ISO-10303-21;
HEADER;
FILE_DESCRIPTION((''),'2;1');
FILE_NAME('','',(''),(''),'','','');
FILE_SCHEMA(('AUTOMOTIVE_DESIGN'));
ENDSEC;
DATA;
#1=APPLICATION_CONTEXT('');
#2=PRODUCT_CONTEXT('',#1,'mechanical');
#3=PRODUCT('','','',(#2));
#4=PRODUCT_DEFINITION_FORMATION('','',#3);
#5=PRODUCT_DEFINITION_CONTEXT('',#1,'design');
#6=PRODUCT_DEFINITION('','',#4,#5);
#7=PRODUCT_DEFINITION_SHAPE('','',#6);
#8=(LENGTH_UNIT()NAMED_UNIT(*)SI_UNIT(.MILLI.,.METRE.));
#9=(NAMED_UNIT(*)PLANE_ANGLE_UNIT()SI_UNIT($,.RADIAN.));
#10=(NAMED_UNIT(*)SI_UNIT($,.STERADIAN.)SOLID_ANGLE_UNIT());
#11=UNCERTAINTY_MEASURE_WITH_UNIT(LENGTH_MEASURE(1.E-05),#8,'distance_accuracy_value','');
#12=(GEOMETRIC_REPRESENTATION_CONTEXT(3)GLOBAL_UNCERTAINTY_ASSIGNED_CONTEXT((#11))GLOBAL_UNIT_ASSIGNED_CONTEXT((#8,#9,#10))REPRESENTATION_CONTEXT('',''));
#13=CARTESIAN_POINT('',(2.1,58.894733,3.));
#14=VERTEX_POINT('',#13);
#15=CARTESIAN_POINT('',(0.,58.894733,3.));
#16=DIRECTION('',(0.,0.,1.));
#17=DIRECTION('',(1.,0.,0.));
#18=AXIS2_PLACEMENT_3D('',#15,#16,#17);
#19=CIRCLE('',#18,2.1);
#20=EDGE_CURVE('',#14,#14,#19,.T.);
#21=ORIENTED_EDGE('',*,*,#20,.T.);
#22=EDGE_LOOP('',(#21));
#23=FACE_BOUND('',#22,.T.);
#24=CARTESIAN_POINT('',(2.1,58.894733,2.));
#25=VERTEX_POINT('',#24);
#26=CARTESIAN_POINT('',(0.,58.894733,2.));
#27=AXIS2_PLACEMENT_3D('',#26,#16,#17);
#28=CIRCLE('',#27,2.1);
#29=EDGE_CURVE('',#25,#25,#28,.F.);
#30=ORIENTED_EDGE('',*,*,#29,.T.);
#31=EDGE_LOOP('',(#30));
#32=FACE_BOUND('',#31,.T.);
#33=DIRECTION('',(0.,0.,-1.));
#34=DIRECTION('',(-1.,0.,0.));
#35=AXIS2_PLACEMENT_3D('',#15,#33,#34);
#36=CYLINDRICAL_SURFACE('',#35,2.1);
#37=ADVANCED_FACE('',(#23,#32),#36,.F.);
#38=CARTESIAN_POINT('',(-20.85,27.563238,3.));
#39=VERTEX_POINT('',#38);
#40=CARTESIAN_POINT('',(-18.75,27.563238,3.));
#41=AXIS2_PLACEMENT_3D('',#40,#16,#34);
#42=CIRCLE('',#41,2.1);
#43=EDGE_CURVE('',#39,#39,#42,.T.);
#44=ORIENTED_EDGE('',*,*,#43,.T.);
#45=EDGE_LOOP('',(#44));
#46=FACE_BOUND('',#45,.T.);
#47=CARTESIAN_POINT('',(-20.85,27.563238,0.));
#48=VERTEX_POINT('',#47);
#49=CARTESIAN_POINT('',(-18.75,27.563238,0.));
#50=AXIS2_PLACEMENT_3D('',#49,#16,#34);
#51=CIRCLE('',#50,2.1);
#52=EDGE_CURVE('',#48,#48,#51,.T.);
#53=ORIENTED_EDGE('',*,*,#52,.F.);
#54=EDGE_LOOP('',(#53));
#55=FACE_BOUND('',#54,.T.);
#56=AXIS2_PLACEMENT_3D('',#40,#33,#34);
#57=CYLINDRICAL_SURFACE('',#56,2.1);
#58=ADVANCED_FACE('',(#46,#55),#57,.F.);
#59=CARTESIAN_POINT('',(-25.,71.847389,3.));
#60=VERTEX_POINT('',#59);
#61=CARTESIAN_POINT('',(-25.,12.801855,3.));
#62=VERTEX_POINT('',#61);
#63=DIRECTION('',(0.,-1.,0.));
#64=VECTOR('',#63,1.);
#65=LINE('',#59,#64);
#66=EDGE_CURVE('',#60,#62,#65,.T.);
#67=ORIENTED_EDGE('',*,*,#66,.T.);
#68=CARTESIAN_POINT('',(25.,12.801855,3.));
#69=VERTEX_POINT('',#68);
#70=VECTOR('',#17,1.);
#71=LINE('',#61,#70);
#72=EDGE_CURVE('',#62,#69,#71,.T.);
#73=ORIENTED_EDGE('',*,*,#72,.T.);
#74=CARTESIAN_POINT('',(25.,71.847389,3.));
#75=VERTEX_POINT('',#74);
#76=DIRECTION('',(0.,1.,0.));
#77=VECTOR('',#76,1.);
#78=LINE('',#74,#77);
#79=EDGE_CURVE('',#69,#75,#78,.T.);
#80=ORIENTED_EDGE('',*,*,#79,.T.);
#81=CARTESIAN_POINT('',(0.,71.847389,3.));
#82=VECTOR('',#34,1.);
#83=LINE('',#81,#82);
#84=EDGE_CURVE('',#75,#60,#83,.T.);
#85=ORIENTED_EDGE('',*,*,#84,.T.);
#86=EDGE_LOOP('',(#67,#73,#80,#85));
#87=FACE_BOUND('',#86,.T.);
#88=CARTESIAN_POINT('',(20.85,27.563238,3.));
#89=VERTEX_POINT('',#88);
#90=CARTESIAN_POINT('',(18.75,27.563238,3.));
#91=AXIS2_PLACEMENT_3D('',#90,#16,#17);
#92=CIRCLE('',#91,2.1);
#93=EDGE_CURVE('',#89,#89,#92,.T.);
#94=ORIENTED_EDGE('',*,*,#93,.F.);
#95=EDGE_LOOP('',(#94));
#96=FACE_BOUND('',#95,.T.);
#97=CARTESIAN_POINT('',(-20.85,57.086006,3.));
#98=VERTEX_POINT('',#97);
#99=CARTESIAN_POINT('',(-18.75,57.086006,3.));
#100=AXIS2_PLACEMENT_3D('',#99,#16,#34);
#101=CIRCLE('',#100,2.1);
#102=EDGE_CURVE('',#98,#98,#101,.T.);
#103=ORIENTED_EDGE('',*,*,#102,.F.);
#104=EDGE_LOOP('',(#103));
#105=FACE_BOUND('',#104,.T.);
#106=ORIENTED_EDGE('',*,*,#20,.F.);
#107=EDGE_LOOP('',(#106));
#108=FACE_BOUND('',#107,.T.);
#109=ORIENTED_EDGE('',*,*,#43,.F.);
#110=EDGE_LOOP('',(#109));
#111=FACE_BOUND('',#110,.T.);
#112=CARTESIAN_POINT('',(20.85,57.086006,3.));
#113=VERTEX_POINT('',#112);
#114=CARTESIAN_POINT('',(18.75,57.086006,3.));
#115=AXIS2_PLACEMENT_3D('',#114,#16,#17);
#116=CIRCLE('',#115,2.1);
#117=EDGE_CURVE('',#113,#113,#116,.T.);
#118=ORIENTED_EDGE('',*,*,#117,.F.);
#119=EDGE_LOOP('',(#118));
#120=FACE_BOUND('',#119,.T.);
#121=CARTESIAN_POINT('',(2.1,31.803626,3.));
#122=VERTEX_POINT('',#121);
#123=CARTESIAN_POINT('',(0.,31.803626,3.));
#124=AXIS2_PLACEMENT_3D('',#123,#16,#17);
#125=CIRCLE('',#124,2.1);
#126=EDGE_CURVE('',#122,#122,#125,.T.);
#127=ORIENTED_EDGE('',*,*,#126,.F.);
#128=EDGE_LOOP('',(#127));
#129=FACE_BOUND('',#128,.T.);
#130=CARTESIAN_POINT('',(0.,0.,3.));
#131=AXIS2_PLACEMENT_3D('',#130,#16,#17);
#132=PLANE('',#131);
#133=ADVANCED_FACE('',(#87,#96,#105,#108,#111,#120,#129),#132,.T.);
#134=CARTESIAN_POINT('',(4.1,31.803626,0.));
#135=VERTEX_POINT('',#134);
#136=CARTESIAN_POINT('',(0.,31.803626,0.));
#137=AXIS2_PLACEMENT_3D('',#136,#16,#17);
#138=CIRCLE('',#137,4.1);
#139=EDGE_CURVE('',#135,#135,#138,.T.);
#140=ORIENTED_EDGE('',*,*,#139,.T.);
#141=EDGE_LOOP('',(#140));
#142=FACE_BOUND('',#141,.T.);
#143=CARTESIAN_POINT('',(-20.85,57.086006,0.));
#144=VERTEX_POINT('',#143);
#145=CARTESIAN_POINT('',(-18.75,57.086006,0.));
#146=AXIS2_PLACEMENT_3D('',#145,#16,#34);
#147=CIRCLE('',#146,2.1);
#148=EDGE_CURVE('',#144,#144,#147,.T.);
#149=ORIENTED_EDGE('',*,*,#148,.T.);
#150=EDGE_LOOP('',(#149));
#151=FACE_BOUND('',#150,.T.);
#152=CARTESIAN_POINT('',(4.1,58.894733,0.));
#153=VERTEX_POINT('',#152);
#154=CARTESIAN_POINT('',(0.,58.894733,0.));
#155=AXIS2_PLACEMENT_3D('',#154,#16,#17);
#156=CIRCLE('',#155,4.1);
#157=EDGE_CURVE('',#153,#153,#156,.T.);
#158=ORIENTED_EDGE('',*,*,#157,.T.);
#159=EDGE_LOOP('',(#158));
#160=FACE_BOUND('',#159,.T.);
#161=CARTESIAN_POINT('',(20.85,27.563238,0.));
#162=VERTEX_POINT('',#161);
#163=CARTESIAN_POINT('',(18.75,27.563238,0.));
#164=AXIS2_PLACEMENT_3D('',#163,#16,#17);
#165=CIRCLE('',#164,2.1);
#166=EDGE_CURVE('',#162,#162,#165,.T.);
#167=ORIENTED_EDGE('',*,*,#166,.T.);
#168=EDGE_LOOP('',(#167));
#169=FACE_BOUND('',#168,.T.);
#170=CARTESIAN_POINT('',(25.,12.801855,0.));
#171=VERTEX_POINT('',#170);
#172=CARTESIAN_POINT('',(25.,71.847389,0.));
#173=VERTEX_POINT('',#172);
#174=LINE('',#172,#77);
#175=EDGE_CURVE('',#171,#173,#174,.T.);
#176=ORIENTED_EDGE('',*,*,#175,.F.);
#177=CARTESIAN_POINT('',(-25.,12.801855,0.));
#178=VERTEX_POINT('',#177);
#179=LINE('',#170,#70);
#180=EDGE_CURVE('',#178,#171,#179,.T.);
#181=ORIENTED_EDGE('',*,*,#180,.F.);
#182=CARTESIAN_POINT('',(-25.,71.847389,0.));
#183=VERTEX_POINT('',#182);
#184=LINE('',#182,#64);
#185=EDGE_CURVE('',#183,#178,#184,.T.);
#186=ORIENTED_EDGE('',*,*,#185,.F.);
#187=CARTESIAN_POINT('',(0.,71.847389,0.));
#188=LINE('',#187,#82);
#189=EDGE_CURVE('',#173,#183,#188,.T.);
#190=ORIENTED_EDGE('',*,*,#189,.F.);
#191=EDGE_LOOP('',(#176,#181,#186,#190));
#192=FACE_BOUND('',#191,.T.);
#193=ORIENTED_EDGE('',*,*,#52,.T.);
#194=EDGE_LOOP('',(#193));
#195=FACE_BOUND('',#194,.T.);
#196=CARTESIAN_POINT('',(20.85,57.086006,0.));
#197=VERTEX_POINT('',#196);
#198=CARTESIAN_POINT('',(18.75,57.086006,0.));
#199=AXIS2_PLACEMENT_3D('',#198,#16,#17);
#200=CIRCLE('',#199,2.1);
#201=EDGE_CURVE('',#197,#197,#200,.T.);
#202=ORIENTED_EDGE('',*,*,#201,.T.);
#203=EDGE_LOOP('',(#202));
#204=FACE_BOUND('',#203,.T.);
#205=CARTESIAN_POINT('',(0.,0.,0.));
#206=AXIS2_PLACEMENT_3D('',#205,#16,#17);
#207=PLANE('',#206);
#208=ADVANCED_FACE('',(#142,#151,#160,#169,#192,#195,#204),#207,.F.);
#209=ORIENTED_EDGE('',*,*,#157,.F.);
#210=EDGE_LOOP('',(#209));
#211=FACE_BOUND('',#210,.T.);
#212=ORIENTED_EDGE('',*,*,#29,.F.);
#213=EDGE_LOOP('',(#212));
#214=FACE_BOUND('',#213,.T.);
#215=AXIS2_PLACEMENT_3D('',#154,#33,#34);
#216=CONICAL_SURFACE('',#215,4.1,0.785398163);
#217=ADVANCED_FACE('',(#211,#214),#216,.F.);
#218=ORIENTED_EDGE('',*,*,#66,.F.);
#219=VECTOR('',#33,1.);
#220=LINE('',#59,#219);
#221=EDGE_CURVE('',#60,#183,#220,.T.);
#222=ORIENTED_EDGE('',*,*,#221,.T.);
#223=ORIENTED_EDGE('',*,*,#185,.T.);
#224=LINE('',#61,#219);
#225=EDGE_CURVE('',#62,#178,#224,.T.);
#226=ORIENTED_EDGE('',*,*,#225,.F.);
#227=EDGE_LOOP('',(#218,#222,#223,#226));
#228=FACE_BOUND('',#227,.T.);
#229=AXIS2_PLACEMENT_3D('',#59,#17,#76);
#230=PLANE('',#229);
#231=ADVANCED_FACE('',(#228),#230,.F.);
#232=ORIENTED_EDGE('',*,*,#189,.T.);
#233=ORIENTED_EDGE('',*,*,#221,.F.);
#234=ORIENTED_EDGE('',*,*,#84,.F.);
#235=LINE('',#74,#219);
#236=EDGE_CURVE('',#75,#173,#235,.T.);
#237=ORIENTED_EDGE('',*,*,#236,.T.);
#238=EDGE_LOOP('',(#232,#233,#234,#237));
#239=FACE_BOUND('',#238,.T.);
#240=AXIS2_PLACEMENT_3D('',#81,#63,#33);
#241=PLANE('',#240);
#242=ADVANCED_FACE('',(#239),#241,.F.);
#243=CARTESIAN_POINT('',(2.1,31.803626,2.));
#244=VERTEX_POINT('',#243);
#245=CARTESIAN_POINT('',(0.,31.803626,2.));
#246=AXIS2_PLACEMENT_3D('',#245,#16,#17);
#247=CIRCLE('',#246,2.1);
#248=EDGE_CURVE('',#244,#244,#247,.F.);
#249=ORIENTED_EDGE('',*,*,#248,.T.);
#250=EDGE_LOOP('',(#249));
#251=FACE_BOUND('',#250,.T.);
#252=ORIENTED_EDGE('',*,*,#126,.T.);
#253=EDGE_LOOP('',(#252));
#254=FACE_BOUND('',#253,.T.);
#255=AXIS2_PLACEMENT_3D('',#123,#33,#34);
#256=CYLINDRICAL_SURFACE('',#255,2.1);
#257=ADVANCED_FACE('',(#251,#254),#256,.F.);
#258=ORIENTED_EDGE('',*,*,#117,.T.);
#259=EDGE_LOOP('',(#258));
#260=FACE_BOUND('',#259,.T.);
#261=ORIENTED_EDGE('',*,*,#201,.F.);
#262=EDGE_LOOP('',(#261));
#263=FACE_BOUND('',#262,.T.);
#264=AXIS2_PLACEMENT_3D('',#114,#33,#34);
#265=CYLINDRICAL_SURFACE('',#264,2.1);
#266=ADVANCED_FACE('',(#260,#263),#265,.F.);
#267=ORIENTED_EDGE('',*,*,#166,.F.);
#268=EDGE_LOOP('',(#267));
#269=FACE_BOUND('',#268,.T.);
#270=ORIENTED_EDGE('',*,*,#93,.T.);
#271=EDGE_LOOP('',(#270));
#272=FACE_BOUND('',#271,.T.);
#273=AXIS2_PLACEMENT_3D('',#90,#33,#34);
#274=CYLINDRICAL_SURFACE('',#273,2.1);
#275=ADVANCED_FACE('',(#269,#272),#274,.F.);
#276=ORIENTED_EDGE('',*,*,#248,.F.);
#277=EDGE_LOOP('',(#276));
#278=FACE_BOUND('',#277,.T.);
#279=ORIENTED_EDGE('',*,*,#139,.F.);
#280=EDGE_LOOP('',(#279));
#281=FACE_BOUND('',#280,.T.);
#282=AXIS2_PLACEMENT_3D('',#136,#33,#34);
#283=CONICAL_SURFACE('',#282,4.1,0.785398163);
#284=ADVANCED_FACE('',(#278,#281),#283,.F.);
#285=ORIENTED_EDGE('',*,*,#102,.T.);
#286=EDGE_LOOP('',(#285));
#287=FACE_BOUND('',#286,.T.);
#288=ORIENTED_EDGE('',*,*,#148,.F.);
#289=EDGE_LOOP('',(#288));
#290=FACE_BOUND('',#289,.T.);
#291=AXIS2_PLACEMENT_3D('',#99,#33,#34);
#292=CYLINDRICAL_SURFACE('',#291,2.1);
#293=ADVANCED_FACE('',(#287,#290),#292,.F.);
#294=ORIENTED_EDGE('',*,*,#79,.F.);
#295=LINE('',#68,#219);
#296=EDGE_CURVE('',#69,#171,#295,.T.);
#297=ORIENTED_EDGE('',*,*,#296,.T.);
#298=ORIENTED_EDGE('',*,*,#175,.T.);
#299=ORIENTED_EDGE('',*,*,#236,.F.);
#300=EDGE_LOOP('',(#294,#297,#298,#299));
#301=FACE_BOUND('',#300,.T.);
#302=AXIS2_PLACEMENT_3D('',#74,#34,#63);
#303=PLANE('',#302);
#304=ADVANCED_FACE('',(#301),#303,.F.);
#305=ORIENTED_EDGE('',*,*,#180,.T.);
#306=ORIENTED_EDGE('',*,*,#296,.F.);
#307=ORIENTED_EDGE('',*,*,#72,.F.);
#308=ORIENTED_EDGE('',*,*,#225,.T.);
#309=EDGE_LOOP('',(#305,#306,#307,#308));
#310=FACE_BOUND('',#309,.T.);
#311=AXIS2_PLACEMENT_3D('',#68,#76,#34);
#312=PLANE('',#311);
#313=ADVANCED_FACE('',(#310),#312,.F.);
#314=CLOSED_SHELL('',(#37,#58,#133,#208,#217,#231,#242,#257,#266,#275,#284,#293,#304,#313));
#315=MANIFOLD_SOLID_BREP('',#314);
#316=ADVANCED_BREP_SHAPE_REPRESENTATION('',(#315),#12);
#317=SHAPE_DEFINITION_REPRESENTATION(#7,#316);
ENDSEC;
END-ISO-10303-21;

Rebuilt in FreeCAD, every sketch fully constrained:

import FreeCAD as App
import Part
import Sketcher


def edges_at(feature, points):
    """Names of the edges that pass closest to the given points."""
    edges = feature.Shape.Edges
    near = lambda p: min(range(len(edges)), key=lambda i: edges[i].distToShape(Part.Vertex(*p))[0])
    return sorted({f"Edge{near(p) + 1}" for p in points})

doc = App.newDocument("Part")
body = doc.addObject("PartDesign::Body", "Body")

# Sketch on XY plane
sketch1 = body.newObject("Sketcher::SketchObject", "Sketch")
sketch1.AttachmentSupport = (doc.getObject("XY_Plane"), [""])
sketch1.MapMode = "FlatFace"
sketch1.addGeometry([
    Part.LineSegment(App.Vector(25, 71.8, 0), App.Vector(-25, 71.8, 0)),  # 0
    Part.LineSegment(App.Vector(-25, 71.8, 0), App.Vector(-25, 12.8, 0)),  # 1
    Part.LineSegment(App.Vector(-25, 12.8, 0), App.Vector(25, 12.8, 0)),  # 2
    Part.LineSegment(App.Vector(25, 12.8, 0), App.Vector(25, 71.8, 0)),  # 3
    Part.Circle(App.Vector(18.8, 27.6, 0), App.Vector(0, 0, 1), 2.1),  # 4
    Part.Circle(App.Vector(0, 31.8, 0), App.Vector(0, 0, 1), 2.1),  # 5
    Part.Circle(App.Vector(-18.8, 27.6, 0), App.Vector(0, 0, 1), 2.1),  # 6
    Part.Circle(App.Vector(18.8, 57.1, 0), App.Vector(0, 0, 1), 2.1),  # 7
    Part.Circle(App.Vector(0, 58.9, 0), App.Vector(0, 0, 1), 2.1),  # 8
    Part.Circle(App.Vector(-18.8, 57.1, 0), App.Vector(0, 0, 1), 2.1),  # 9
], False)
sketch1.addConstraint([
    Sketcher.Constraint("Coincident", 0, 2, 1, 1),
    Sketcher.Constraint("Coincident", 1, 2, 2, 1),
    Sketcher.Constraint("Coincident", 2, 2, 3, 1),
    Sketcher.Constraint("Coincident", 3, 2, 0, 1),
    Sketcher.Constraint("Horizontal", 0),
    Sketcher.Constraint("Vertical", 1),
    Sketcher.Constraint("Horizontal", 2),
    Sketcher.Constraint("Vertical", 3),
    Sketcher.Constraint("Equal", 4, 5),
    Sketcher.Constraint("Equal", 5, 6),
    Sketcher.Constraint("Equal", 6, 7),
    Sketcher.Constraint("Equal", 7, 8),
    Sketcher.Constraint("Equal", 8, 9),
    Sketcher.Constraint("Symmetric", 4, 3, 6, 3, -2),
    Sketcher.Constraint("Symmetric", 7, 3, 9, 3, -2),
    Sketcher.Constraint("PointOnObject", 5, 3, -2),
    Sketcher.Constraint("PointOnObject", 8, 3, -2),
    Sketcher.Constraint("Vertical", 4, 3, 7, 3),
    Sketcher.Constraint("Diameter", 4, 4.2),
    Sketcher.Constraint("DistanceX", 0, 2, 0, 1, 50.0),
    Sketcher.Constraint("DistanceX", 0, 2, -1, 1, 25.0),
    Sketcher.Constraint("DistanceX", 6, 3, 4, 3, 37.5),
    Sketcher.Constraint("DistanceY", 1, 2, 1, 1, 59.045534),
    Sketcher.Constraint("DistanceY", -1, 1, 4, 3, 27.563238),
    Sketcher.Constraint("DistanceY", -1, 1, 0, 2, 71.847389),
    Sketcher.Constraint("DistanceY", 5, 3, 7, 3, 25.28238),
    Sketcher.Constraint("DistanceY", 1, 2, 5, 3, 19.001771),
    Sketcher.Constraint("DistanceY", 1, 2, 8, 3, 46.092878),
])
pad1 = body.newObject("PartDesign::Pad", "Pad")
pad1.Profile = sketch1
pad1.Length = 3
doc.recompute()

chamfer = body.newObject("PartDesign::Chamfer", "Chamfer")
chamfer.Base = (pad1, edges_at(pad1, [(-2.1, 58.895, 0), (-2.1, 31.804, 0)]))
chamfer.Size = 2

doc.recompute()
